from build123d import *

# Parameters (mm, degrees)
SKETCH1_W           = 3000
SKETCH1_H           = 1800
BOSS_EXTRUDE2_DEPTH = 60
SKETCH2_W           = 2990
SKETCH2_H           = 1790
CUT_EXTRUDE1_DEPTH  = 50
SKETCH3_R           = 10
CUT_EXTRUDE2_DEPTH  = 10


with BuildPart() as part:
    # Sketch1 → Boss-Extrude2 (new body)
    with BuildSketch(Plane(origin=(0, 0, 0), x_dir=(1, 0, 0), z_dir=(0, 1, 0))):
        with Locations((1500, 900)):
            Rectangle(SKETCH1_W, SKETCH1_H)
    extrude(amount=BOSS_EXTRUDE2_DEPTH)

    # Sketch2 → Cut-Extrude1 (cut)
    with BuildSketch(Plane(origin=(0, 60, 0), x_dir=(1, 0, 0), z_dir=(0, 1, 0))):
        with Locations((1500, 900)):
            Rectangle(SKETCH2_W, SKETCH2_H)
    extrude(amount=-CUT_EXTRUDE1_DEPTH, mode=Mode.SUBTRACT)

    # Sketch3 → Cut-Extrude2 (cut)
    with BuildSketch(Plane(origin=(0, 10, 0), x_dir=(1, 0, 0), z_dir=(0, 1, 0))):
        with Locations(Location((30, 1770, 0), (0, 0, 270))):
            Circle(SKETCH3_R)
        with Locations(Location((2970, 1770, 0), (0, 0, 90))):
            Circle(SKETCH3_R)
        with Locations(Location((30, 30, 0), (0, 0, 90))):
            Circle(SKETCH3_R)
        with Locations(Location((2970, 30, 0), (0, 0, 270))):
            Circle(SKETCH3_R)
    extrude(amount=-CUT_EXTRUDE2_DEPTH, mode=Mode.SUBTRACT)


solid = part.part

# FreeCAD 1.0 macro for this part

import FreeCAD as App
import Part
import Sketcher
from FreeCAD import Vector
Q = App.Units.Quantity


def add_polygon(sketch, points):
    """Adds a closed chain of lines whose ends are joined by coincident constraints."""
    first, n = sketch.GeometryCount, len(points)
    for a, b in zip(points, points[1:] + points[:1]):
        sketch.addGeometry(Part.LineSegment(App.Vector(*a, 0), App.Vector(*b, 0)), False)
    for i in range(n):
        sketch.addConstraint(Sketcher.Constraint("Coincident", first + i, 2, first + (i + 1) % n, 1))

doc = App.newDocument("Part")
body = doc.addObject("PartDesign::Body", "Body")

sketch1 = body.newObject("Sketcher::SketchObject", "Sketch")
sketch1.AttachmentSupport = (doc.getObject("XZ_Plane"), [""])
sketch1.MapMode = "FlatFace"
add_polygon(sketch1, [(0, -1800), (0, 0), (3000, 0), (3000, -1800)])
sketch1.addConstraint(Sketcher.Constraint("Vertical", 0))
sketch1.addConstraint(Sketcher.Constraint("Horizontal", 1))
sketch1.addConstraint(Sketcher.Constraint("Vertical", 2))
sketch1.addConstraint(Sketcher.Constraint("Horizontal", 3))
sketch1.addConstraint(Sketcher.Constraint("Coincident", 0, 2, -1, 1))
sketch1.addConstraint(Sketcher.Constraint("DistanceX", 1, 1, 1, 2, Q("3000 mm")))
sketch1.addConstraint(Sketcher.Constraint("DistanceY", 0, 1, 0, 2, Q("1800 mm")))
pad1 = body.newObject("PartDesign::Pad", "Pad")
pad1.Profile = sketch1
pad1.Length = 60
pad1.Reversed = True

sketch2 = body.newObject("Sketcher::SketchObject", "Sketch001")
sketch2.AttachmentSupport = (doc.getObject("XZ_Plane"), [""])
sketch2.MapMode = "FlatFace"
sketch2.AttachmentOffset = App.Placement(Vector(0, 0, -60), App.Rotation())
add_polygon(sketch2, [(5, -1795), (5, -5), (2995, -5), (2995, -1795)])
sketch2.addConstraint(Sketcher.Constraint("Vertical", 0))
sketch2.addConstraint(Sketcher.Constraint("Horizontal", 1))
sketch2.addConstraint(Sketcher.Constraint("Vertical", 2))
sketch2.addConstraint(Sketcher.Constraint("Horizontal", 3))
sketch2.addConstraint(Sketcher.Constraint("DistanceX", 1, 1, 1, 2, Q("2990 mm")))
sketch2.addConstraint(Sketcher.Constraint("DistanceY", 0, 1, 0, 2, Q("1790 mm")))
sketch2.addConstraint(Sketcher.Constraint("DistanceX", -1, 1, 0, 2, Q("5 mm")))
sketch2.addConstraint(Sketcher.Constraint("DistanceY", 0, 2, -1, 1, Q("5 mm")))
pocket1 = body.newObject("PartDesign::Pocket", "Pocket")
pocket1.Profile = sketch2
pocket1.Length = 50
pocket1.Reversed = True

sketch3 = body.newObject("Sketcher::SketchObject", "Sketch002")
sketch3.AttachmentSupport = (doc.getObject("XZ_Plane"), [""])
sketch3.MapMode = "FlatFace"
sketch3.AttachmentOffset = App.Placement(Vector(0, 0, -10), App.Rotation())
sketch3.addGeometry(Part.Circle(Vector(30, -1770, 0), Vector(0, 0, 1), 10), False)
sketch3.addGeometry(Part.Circle(Vector(2970, -1770, 0), Vector(0, 0, 1), 10), False)
sketch3.addGeometry(Part.Circle(Vector(30, -30, 0), Vector(0, 0, 1), 10), False)
sketch3.addGeometry(Part.Circle(Vector(2970, -30, 0), Vector(0, 0, 1), 10), False)
sketch3.addConstraint(Sketcher.Constraint("Equal", 0, 1))
sketch3.addConstraint(Sketcher.Constraint("Equal", 1, 2))
sketch3.addConstraint(Sketcher.Constraint("Equal", 2, 3))
sketch3.addConstraint(Sketcher.Constraint("Horizontal", 0, 3, 1, 3))
sketch3.addConstraint(Sketcher.Constraint("Horizontal", 2, 3, 3, 3))
sketch3.addConstraint(Sketcher.Constraint("Vertical", 0, 3, 2, 3))
sketch3.addConstraint(Sketcher.Constraint("Vertical", 1, 3, 3, 3))
sketch3.addConstraint(Sketcher.Constraint("Diameter", 0, Q("20 mm")))
sketch3.addConstraint(Sketcher.Constraint("DistanceX", -1, 1, 0, 3, Q("30 mm")))
sketch3.addConstraint(Sketcher.Constraint("DistanceY", 0, 3, -1, 1, Q("1770 mm")))
sketch3.addConstraint(Sketcher.Constraint("DistanceX", -1, 1, 1, 3, Q("2970 mm")))
sketch3.addConstraint(Sketcher.Constraint("DistanceY", 2, 3, -1, 1, Q("30 mm")))
pocket2 = body.newObject("PartDesign::Pocket", "Pocket001")
pocket2.Profile = sketch3
pocket2.Length = 10
pocket2.Reversed = True

doc.recompute()
